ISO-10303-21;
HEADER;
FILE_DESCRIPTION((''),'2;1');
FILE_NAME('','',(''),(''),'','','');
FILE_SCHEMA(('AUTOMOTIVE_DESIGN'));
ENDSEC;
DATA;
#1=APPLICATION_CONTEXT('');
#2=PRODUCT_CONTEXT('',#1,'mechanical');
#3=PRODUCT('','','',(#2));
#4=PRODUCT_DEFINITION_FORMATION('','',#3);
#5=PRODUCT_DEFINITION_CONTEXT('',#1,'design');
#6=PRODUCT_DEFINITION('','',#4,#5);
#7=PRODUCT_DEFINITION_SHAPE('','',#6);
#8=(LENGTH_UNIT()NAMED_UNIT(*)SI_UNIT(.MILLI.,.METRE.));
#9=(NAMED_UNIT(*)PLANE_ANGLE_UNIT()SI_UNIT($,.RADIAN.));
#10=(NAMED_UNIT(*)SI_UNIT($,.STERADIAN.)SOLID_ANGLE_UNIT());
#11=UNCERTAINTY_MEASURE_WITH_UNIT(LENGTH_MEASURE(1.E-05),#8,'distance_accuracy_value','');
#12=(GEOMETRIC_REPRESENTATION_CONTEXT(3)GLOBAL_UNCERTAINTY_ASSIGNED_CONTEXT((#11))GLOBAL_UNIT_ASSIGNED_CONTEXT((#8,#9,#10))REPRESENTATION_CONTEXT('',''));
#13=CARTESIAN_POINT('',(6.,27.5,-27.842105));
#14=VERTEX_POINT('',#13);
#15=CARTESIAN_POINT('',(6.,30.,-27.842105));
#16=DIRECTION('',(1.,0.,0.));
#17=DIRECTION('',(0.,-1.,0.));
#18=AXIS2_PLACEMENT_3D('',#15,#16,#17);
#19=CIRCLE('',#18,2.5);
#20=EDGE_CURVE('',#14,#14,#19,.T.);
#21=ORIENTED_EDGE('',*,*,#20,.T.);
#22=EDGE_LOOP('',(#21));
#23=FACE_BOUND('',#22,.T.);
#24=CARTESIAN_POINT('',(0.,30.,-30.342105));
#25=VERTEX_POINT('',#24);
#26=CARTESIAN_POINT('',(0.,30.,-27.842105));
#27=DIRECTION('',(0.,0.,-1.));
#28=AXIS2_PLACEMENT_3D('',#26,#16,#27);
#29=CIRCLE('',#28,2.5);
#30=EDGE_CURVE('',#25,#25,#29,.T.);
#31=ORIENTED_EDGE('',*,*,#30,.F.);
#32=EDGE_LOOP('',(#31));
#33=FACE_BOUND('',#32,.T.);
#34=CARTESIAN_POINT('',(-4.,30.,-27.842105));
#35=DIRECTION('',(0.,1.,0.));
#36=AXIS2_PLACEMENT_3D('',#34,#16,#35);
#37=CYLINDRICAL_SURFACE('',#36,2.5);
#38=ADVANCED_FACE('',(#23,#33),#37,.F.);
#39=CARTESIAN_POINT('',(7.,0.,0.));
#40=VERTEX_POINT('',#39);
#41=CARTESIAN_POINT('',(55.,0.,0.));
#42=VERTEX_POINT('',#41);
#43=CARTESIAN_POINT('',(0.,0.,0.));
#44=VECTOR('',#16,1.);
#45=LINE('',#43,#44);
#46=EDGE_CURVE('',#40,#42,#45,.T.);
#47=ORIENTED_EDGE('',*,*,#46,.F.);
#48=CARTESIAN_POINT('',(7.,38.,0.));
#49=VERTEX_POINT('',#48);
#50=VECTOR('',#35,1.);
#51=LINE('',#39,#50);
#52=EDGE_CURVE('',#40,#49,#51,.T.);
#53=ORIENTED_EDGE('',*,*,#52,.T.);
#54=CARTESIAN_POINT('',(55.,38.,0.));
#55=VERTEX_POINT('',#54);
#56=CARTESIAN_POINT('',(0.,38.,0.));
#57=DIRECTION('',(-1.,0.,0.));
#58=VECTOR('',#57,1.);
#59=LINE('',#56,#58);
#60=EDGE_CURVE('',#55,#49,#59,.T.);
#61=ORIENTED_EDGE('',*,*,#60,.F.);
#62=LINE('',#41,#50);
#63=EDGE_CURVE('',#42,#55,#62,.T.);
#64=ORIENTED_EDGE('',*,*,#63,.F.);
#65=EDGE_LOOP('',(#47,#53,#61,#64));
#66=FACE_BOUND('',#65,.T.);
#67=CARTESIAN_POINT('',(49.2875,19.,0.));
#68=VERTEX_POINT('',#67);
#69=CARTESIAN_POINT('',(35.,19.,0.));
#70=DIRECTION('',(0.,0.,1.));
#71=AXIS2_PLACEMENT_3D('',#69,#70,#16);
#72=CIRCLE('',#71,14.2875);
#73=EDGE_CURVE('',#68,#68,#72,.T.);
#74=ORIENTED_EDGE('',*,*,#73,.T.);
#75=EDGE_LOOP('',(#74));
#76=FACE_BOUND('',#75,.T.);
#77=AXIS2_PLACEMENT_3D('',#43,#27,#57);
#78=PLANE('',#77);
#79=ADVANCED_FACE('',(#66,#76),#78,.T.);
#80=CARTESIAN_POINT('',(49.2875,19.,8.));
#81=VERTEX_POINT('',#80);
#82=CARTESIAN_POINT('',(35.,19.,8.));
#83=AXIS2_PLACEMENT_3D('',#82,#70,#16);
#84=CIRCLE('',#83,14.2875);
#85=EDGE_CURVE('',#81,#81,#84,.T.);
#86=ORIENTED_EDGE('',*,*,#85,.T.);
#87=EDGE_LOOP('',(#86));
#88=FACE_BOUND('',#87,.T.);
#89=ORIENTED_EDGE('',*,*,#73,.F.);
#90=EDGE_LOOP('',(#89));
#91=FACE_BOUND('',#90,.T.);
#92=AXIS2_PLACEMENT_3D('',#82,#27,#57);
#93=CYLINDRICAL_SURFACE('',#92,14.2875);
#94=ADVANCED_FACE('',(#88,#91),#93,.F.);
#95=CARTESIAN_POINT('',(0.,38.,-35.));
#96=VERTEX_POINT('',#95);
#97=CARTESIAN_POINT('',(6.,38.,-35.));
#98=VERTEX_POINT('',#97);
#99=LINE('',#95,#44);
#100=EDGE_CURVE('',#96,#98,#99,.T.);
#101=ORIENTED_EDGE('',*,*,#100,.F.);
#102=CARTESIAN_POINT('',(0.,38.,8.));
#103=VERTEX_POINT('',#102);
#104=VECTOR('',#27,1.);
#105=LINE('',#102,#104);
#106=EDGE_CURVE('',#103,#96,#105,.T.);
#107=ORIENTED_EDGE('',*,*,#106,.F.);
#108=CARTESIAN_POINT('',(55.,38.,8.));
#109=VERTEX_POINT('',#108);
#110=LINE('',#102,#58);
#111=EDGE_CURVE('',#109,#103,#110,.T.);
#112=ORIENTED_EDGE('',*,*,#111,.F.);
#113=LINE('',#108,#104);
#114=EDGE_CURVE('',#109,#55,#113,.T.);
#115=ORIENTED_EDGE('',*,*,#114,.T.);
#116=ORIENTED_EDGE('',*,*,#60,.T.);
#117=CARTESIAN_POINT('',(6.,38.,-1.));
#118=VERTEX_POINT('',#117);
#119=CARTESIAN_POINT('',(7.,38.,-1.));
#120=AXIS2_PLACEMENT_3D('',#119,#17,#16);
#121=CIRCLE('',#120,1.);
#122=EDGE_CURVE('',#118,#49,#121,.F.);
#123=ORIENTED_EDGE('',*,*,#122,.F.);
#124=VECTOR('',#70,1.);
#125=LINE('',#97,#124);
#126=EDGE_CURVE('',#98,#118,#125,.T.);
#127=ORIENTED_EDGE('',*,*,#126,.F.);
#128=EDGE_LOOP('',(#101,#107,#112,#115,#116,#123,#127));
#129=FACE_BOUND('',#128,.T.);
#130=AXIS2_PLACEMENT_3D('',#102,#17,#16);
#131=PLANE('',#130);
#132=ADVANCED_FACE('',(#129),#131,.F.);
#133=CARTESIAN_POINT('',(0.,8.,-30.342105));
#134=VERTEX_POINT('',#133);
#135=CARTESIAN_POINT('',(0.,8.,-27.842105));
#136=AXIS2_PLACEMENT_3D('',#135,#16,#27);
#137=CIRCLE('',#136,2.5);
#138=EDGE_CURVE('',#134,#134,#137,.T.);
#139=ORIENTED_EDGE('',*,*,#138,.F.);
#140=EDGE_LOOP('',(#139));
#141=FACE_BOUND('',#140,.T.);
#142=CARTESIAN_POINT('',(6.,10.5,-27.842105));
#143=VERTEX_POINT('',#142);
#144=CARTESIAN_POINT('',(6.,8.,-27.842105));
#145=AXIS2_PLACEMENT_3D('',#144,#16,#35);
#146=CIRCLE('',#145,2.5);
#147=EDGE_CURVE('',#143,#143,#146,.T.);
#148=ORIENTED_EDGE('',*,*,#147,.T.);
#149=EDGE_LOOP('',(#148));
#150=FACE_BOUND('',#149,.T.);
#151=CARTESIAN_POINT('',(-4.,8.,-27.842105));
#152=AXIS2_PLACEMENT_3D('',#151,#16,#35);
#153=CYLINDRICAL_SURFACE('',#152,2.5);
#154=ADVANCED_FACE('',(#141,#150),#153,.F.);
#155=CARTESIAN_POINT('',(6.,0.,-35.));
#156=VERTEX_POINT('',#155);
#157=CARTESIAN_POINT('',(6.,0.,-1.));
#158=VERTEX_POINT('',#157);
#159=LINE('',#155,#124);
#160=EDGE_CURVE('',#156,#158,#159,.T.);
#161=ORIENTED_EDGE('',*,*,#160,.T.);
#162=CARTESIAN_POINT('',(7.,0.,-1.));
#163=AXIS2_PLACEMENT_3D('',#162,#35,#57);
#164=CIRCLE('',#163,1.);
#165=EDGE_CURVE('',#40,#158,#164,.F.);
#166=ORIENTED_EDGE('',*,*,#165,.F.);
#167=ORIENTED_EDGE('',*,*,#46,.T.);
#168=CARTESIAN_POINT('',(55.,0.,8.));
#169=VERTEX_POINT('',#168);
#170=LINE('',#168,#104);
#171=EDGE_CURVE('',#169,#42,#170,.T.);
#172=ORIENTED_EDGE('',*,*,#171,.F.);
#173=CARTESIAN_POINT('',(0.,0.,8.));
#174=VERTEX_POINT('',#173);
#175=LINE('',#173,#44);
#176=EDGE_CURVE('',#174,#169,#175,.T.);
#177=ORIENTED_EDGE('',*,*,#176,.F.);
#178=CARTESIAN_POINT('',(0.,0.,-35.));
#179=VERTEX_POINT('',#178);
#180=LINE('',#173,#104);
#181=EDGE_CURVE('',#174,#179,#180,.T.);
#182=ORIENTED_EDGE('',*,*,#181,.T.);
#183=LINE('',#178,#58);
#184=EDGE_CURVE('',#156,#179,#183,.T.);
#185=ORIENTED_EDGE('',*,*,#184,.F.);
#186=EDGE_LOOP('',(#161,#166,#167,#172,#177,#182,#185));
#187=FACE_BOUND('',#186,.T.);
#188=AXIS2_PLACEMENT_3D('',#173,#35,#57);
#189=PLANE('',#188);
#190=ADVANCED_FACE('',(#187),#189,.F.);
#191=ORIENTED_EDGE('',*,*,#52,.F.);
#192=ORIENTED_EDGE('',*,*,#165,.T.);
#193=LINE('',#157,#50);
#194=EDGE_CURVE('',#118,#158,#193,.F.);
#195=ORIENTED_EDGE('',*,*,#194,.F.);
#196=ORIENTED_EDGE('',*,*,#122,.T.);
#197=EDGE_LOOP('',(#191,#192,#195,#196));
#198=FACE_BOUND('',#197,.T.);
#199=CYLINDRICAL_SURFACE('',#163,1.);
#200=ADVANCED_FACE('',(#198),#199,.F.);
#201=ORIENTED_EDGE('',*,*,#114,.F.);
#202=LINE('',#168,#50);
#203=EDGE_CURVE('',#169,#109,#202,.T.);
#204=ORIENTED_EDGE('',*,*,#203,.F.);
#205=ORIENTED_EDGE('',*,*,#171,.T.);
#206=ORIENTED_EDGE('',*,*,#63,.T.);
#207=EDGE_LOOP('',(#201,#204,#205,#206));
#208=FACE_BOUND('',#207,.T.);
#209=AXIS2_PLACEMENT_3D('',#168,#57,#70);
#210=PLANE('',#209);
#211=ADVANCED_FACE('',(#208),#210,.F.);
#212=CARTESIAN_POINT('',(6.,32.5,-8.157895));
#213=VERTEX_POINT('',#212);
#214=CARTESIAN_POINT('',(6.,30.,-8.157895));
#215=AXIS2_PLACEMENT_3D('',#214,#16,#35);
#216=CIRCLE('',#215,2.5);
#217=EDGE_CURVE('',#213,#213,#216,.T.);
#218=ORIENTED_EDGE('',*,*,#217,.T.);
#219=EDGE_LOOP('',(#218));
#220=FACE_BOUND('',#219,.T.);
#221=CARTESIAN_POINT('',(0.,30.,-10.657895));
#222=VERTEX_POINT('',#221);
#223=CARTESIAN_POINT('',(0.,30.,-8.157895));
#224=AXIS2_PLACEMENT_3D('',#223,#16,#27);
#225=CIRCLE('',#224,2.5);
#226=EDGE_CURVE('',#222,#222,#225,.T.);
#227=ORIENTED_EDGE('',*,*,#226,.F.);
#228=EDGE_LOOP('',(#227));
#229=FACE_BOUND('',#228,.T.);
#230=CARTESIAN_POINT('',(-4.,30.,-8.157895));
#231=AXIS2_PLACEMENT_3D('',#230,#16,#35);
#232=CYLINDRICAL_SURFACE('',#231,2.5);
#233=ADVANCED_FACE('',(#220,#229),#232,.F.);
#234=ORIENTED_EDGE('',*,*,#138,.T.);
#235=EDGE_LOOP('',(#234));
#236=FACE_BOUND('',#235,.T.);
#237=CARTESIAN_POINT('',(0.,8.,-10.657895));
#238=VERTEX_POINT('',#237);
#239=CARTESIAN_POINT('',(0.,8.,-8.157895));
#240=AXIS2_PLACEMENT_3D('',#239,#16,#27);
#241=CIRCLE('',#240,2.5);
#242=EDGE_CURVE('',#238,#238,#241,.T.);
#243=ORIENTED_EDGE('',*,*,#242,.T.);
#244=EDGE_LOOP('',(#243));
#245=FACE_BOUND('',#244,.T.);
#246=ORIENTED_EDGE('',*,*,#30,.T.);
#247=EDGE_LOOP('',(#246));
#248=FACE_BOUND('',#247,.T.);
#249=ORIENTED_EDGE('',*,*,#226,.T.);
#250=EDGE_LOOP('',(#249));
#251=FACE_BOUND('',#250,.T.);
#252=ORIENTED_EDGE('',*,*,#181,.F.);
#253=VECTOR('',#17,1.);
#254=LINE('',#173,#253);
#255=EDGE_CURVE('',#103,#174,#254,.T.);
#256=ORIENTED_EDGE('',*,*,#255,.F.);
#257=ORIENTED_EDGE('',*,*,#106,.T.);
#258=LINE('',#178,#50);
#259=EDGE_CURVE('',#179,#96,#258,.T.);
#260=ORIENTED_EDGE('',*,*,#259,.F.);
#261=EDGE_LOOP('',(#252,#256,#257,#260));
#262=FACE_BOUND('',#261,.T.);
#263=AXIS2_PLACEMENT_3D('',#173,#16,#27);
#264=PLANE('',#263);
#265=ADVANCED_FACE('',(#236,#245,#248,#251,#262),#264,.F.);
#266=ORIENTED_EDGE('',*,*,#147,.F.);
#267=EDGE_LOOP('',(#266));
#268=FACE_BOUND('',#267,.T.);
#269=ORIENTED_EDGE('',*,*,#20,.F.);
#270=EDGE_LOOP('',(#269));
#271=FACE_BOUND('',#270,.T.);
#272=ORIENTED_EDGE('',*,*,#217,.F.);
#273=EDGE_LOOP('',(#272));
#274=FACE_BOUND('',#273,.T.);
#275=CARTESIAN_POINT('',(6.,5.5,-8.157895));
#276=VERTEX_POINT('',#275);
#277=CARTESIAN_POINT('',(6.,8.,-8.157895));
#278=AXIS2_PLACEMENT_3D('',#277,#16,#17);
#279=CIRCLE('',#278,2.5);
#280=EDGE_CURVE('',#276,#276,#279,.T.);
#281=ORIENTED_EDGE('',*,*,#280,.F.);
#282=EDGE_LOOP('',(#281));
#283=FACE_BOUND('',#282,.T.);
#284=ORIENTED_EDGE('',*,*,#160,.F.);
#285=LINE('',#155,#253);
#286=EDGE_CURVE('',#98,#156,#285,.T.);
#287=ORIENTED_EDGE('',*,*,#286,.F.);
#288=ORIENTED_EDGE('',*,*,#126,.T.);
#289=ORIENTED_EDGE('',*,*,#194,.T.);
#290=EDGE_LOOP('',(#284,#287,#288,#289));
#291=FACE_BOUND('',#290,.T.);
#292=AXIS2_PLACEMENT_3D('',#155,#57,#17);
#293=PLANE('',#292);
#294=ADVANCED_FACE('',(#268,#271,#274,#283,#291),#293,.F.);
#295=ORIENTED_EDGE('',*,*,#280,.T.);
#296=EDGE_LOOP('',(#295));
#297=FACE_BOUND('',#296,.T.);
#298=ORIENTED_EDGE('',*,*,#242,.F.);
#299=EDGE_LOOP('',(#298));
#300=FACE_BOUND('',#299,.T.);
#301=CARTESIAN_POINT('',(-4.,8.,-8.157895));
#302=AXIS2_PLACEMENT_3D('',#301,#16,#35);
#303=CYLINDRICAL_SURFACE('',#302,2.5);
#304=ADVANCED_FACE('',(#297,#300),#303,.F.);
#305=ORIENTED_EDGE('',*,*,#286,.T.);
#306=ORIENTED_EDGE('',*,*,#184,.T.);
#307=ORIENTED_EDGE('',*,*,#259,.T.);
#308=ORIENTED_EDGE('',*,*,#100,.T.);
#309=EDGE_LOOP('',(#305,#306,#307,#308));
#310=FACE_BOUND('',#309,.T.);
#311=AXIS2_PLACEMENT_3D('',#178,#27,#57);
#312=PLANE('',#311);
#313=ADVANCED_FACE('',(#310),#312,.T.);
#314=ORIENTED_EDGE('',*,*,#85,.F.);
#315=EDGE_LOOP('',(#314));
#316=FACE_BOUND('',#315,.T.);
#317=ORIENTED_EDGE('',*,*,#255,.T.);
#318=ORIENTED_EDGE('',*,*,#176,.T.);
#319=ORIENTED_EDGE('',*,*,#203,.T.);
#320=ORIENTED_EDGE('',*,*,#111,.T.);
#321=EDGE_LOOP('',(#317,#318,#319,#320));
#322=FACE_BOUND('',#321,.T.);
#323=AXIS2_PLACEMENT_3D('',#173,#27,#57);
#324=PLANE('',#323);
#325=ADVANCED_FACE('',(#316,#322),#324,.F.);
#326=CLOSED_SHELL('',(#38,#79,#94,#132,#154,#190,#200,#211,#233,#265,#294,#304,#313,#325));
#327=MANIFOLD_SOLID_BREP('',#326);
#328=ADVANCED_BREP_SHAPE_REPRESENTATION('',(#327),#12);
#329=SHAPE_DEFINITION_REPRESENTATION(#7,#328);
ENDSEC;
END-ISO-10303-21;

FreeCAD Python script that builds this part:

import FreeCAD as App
import Part
import Sketcher
from FreeCAD import Vector


def edges_at(feature, points):
    """Names of the edges that pass closest to the given points."""
    edges = feature.Shape.Edges
    near = lambda p: min(range(len(edges)), key=lambda i: edges[i].distToShape(Part.Vertex(*p))[0])
    return sorted({f"Edge{near(p) + 1}" for p in points})

doc = App.newDocument("Part")
params = doc.addObject("Spreadsheet::Sheet", "Params")
for row, (alias, value) in enumerate([
    ("sketch1_width", "55 mm"),
    ("sketch1_height", "38 mm"),
    ("pad1_length", "8 mm"),
    ("sketch2_width", "6 mm"),
    ("sketch2_height", "38 mm"),
    ("pad2_length", "35 mm"),
    ("fillet_radius", "1 mm"),
    ("sketch3_diameter", "5 mm"),
    ("pocket1_length", "10 mm"),
], start=1):
    params.set(f"A{row}", alias)
    params.set(f"B{row}", "=" + value)
    params.setAlias(f"B{row}", alias)

body = doc.addObject("PartDesign::Body", "Body")

# Sketch on XY plane
sketch1 = doc.addObject("Sketcher::SketchObject", "Sketch")
body.addObject(sketch1)
sketch1.AttachmentSupport = (doc.XY_Plane, [""])
sketch1.MapMode = "FlatFace"
sketch1.addGeometry(Part.LineSegment(Vector(0, 38, 0), Vector(0, 0, 0)), False)
sketch1.addGeometry(Part.LineSegment(Vector(0, 0, 0), Vector(55, 0, 0)), False)
sketch1.addGeometry(Part.LineSegment(Vector(55, 0, 0), Vector(55, 38, 0)), False)
sketch1.addGeometry(Part.LineSegment(Vector(55, 38, 0), Vector(0, 38, 0)), False)
sketch1.addGeometry(Part.Circle(Vector(35, 19, 0), Vector(0, 0, 1), 14), False)
sketch1.addConstraint(Sketcher.Constraint("Coincident", 0, 2, 1, 1))
sketch1.addConstraint(Sketcher.Constraint("Coincident", 1, 2, 2, 1))
sketch1.addConstraint(Sketcher.Constraint("Coincident", 2, 2, 3, 1))
sketch1.addConstraint(Sketcher.Constraint("Coincident", 3, 2, 0, 1))
sketch1.addConstraint(Sketcher.Constraint("Vertical", 0))
sketch1.addConstraint(Sketcher.Constraint("Horizontal", 1))
sketch1.addConstraint(Sketcher.Constraint("Vertical", 2))
sketch1.addConstraint(Sketcher.Constraint("Horizontal", 3))
sketch1.addConstraint(Sketcher.Constraint("Coincident", 0, 2, -1, 1))
sketch1.addConstraint(Sketcher.Constraint("DistanceX", 1, 1, 1, 2, 55.0))
sketch1.addConstraint(Sketcher.Constraint("DistanceY", 0, 2, 0, 1, 38.0))
sketch1.addConstraint(Sketcher.Constraint("Diameter", 4, 28.575))
sketch1.addConstraint(Sketcher.Constraint("DistanceX", -1, 1, 4, 3, 35.0))
sketch1.addConstraint(Sketcher.Constraint("DistanceY", -1, 1, 4, 3, 19.0))
sketch1.setExpression("Constraints[9]", "Params.sketch1_width")
sketch1.setExpression("Constraints[10]", "Params.sketch1_height")
pad1 = doc.addObject("PartDesign::Pad", "Pad")
body.addObject(pad1)
pad1.Profile = sketch1
pad1.setExpression("Length", "Params.pad1_length")

# Sketch on XY plane
sketch2 = doc.addObject("Sketcher::SketchObject", "Sketch001")
body.addObject(sketch2)
sketch2.AttachmentSupport = (doc.XY_Plane, [""])
sketch2.MapMode = "FlatFace"
sketch2.addGeometry(Part.LineSegment(Vector(6, 38, 0), Vector(6, 0, 0)), False)
sketch2.addGeometry(Part.LineSegment(Vector(6, 0, 0), Vector(0, 0, 0)), False)
sketch2.addGeometry(Part.LineSegment(Vector(0, 0, 0), Vector(0, 38, 0)), False)
sketch2.addGeometry(Part.LineSegment(Vector(0, 38, 0), Vector(6, 38, 0)), False)
sketch2.addConstraint(Sketcher.Constraint("Coincident", 0, 2, 1, 1))
sketch2.addConstraint(Sketcher.Constraint("Coincident", 1, 2, 2, 1))
sketch2.addConstraint(Sketcher.Constraint("Coincident", 2, 2, 3, 1))
sketch2.addConstraint(Sketcher.Constraint("Coincident", 3, 2, 0, 1))
sketch2.addConstraint(Sketcher.Constraint("Vertical", 0))
sketch2.addConstraint(Sketcher.Constraint("Horizontal", 1))
sketch2.addConstraint(Sketcher.Constraint("Vertical", 2))
sketch2.addConstraint(Sketcher.Constraint("Horizontal", 3))
sketch2.addConstraint(Sketcher.Constraint("Coincident", 1, 2, -1, 1))
sketch2.addConstraint(Sketcher.Constraint("DistanceX", 1, 2, 1, 1, 6.0))
sketch2.addConstraint(Sketcher.Constraint("DistanceY", 0, 2, 0, 1, 38.0))
sketch2.setExpression("Constraints[9]", "Params.sketch2_width")
sketch2.setExpression("Constraints[10]", "Params.sketch2_height")
pad2 = doc.addObject("PartDesign::Pad", "Pad001")
body.addObject(pad2)
pad2.Profile = sketch2
pad2.setExpression("Length", "Params.pad2_length")
pad2.Reversed = True
doc.recompute()

fillet = doc.addObject("PartDesign::Fillet", "Fillet")
body.addObject(fillet)
fillet.Base = (pad2, edges_at(pad2, [(6, 19, 0)]))
fillet.setExpression("Radius", "Params.fillet_radius")

# Sketch on YZ plane
sketch3 = doc.addObject("Sketcher::SketchObject", "Sketch002")
body.addObject(sketch3)
sketch3.AttachmentSupport = (doc.YZ_Plane, [""])
sketch3.MapMode = "FlatFace"
sketch3.AttachmentOffset = App.Placement(Vector(0, 0, 6), App.Rotation())
sketch3.addGeometry(Part.Circle(Vector(30, -8.2, 0), Vector(0, 0, 1), 2.5), False)
sketch3.addGeometry(Part.Circle(Vector(8, -8.2, 0), Vector(0, 0, 1), 2.5), False)
sketch3.addGeometry(Part.Circle(Vector(8, -27.8, 0), Vector(0, 0, 1), 2.5), False)
sketch3.addGeometry(Part.Circle(Vector(30, -27.8, 0), Vector(0, 0, 1), 2.5), False)
sketch3.addConstraint(Sketcher.Constraint("Equal", 0, 1))
sketch3.addConstraint(Sketcher.Constraint("Equal", 1, 2))
sketch3.addConstraint(Sketcher.Constraint("Equal", 2, 3))
sketch3.addConstraint(Sketcher.Constraint("Horizontal", 0, 3, 1, 3))
sketch3.addConstraint(Sketcher.Constraint("Horizontal", 2, 3, 3, 3))
sketch3.addConstraint(Sketcher.Constraint("Vertical", 1, 3, 2, 3))
sketch3.addConstraint(Sketcher.Constraint("Vertical", 0, 3, 3, 3))
sketch3.addConstraint(Sketcher.Constraint("Diameter", 0, 5.0))
sketch3.addConstraint(Sketcher.Constraint("DistanceX", -1, 1, 0, 3, 30.0))
sketch3.addConstraint(Sketcher.Constraint("DistanceX", -1, 1, 1, 3, 8.0))
sketch3.addConstraint(Sketcher.Constraint("DistanceY", 2, 3, 1, 3, 19.684211))
sketch3.addConstraint(Sketcher.Constraint("DistanceY", 0, 3, -1, 1, 8.157895))
sketch3.setExpression("Constraints[7]", "Params.sketch3_diameter")
pocket1 = doc.addObject("PartDesign::Pocket", "Pocket")
body.addObject(pocket1)
pocket1.Profile = sketch3
pocket1.setExpression("Length", "Params.pocket1_length")

doc.recompute()
